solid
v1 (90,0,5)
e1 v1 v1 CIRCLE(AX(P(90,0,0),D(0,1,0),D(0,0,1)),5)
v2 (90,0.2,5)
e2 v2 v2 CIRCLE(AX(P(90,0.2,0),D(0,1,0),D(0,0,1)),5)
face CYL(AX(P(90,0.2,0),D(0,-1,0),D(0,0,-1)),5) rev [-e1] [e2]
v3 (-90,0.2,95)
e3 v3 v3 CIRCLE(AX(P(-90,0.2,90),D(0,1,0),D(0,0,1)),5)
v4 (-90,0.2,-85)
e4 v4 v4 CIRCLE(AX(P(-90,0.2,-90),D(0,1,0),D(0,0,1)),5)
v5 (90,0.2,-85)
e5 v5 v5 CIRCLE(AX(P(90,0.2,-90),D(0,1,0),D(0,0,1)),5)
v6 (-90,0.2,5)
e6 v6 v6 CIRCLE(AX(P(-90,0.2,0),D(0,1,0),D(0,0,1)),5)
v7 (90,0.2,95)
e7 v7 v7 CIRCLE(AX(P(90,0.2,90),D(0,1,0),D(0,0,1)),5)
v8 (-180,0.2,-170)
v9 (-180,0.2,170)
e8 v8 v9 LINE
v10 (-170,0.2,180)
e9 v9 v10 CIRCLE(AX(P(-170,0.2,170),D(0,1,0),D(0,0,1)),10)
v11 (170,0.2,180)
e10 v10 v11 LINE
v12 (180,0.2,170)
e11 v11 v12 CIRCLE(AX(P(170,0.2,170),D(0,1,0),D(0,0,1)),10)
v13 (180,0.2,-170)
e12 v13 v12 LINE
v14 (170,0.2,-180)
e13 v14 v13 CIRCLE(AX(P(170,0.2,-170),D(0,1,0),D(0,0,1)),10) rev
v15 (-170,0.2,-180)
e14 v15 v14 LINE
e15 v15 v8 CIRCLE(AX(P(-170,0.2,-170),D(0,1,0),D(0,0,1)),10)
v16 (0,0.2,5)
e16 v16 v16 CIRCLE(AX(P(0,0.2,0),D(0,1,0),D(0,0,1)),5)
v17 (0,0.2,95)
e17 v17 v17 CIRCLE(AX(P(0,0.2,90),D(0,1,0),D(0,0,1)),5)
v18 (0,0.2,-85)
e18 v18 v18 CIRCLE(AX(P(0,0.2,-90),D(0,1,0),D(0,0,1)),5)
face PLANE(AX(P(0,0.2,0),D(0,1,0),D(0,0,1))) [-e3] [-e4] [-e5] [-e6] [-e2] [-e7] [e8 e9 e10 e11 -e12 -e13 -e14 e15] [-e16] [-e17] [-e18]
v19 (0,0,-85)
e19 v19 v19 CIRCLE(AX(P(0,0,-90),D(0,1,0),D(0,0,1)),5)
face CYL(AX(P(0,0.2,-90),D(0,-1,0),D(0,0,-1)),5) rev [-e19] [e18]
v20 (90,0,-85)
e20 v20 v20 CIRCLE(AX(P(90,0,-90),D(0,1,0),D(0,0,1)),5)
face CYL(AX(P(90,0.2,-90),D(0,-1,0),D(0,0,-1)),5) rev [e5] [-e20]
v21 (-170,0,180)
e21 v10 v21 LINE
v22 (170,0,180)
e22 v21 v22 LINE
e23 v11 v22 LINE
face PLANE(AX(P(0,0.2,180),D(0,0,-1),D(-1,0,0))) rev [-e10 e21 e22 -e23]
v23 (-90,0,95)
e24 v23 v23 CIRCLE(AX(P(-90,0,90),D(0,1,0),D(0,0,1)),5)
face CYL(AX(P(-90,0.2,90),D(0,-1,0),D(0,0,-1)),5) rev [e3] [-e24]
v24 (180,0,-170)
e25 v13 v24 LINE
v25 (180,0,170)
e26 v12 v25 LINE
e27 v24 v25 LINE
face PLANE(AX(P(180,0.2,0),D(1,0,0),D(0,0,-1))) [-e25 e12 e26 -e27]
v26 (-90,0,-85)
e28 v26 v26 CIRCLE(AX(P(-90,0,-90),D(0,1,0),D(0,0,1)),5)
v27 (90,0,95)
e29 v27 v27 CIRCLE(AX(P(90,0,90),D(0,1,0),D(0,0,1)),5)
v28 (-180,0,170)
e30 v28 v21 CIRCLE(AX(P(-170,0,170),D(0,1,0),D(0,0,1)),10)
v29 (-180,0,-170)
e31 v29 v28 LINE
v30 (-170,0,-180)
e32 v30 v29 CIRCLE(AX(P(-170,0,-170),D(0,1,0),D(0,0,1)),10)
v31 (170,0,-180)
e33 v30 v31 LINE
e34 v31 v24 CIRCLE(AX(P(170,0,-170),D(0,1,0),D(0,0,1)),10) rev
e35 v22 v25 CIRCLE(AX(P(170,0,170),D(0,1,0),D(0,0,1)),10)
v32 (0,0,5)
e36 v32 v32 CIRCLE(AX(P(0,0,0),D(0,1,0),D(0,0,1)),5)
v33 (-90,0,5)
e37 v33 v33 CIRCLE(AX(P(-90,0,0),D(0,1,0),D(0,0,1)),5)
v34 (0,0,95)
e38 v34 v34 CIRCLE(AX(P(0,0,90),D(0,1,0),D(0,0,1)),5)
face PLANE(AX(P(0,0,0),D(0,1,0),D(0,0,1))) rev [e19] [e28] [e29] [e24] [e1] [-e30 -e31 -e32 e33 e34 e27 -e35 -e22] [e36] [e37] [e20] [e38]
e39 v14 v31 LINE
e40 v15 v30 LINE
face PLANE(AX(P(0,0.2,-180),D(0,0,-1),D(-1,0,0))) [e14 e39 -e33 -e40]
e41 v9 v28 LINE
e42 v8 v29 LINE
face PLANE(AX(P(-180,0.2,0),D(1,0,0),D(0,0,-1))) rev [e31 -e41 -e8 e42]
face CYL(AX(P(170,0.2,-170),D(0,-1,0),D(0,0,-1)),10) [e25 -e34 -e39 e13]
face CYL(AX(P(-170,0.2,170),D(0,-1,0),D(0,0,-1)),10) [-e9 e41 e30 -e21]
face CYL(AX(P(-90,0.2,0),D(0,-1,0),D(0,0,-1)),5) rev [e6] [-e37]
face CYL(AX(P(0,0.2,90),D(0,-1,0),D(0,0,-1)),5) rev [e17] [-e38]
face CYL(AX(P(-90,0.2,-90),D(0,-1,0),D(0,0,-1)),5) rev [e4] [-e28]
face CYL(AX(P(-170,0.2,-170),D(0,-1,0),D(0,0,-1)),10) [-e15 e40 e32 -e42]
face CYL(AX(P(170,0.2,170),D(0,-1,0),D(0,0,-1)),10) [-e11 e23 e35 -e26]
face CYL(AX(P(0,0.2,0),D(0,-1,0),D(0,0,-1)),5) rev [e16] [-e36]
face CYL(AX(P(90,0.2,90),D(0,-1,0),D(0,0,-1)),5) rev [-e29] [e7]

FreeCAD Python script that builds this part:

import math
import FreeCAD as App
import Part
import Sketcher
from FreeCAD import Vector
Q = App.Units.Quantity

doc = App.newDocument("Part")
body = doc.addObject("PartDesign::Body", "Body")

# Sketch on XZ plane
sketch1 = body.newObject("Sketcher::SketchObject", "Sketch")
sketch1.AttachmentSupport = (doc.getObject("XZ_Plane"), [""])
sketch1.MapMode = "FlatFace"
sketch1.addGeometry(Part.ArcOfCircle(Part.Circle(Vector(-170, -170, 0), Vector(0, 0, 1), 10), math.radians(180), math.radians(270)), False)
sketch1.addGeometry(Part.LineSegment(Vector(-180, -170, 0), Vector(-180, 170, 0)), False)
sketch1.addGeometry(Part.ArcOfCircle(Part.Circle(Vector(-170, 170, 0), Vector(0, 0, 1), 10), math.radians(90), math.radians(180)), False)
sketch1.addGeometry(Part.LineSegment(Vector(-170, 180, 0), Vector(170, 180, 0)), False)
sketch1.addGeometry(Part.ArcOfCircle(Part.Circle(Vector(170, 170, 0), Vector(0, 0, 1), 10), math.radians(0), math.radians(90)), False)
sketch1.addGeometry(Part.LineSegment(Vector(180, 170, 0), Vector(180, -170, 0)), False)
sketch1.addGeometry(Part.ArcOfCircle(Part.Circle(Vector(170, -170, 0), Vector(0, 0, 1), 10), math.radians(-90), math.radians(0)), False)
sketch1.addGeometry(Part.LineSegment(Vector(170, -180, 0), Vector(-170, -180, 0)), False)
sketch1.addGeometry(Part.ArcOfCircle(Part.Circle(Vector(90, -90, 0), Vector(0, 0, 1), 5), math.radians(-90), math.radians(0)), False)
sketch1.addGeometry(Part.ArcOfCircle(Part.Circle(Vector(90, -90, 0), Vector(0, 0, 1), 5), math.radians(0), math.radians(90)), False)
sketch1.addGeometry(Part.ArcOfCircle(Part.Circle(Vector(90, -90, 0), Vector(0, 0, 1), 5), math.radians(90), math.radians(180)), False)
sketch1.addGeometry(Part.ArcOfCircle(Part.Circle(Vector(90, -90, 0), Vector(0, 0, 1), 5), math.radians(180), math.radians(270)), False)
sketch1.addGeometry(Part.ArcOfCircle(Part.Circle(Vector(0, -90, 0), Vector(0, 0, 1), 5), math.radians(0), math.radians(90)), False)
sketch1.addGeometry(Part.ArcOfCircle(Part.Circle(Vector(0, -90, 0), Vector(0, 0, 1), 5), math.radians(90), math.radians(180)), False)
sketch1.addGeometry(Part.ArcOfCircle(Part.Circle(Vector(0, -90, 0), Vector(0, 0, 1), 5), math.radians(180), math.radians(270)), False)
sketch1.addGeometry(Part.ArcOfCircle(Part.Circle(Vector(0, -90, 0), Vector(0, 0, 1), 5), math.radians(-90), math.radians(0)), False)
sketch1.addGeometry(Part.ArcOfCircle(Part.Circle(Vector(90, 0, 0), Vector(0, 0, 1), 5), math.radians(0), math.radians(90)), False)
sketch1.addGeometry(Part.ArcOfCircle(Part.Circle(Vector(90, 0, 0), Vector(0, 0, 1), 5), math.radians(90), math.radians(180)), False)
sketch1.addGeometry(Part.ArcOfCircle(Part.Circle(Vector(90, 0, 0), Vector(0, 0, 1), 5), math.radians(180), math.radians(270)), False)
sketch1.addGeometry(Part.ArcOfCircle(Part.Circle(Vector(90, 0, 0), Vector(0, 0, 1), 5), math.radians(-90), math.radians(0)), False)
sketch1.addGeometry(Part.ArcOfCircle(Part.Circle(Vector(0, 0, 0), Vector(0, 0, 1), 5), math.radians(0), math.radians(90)), False)
sketch1.addGeometry(Part.ArcOfCircle(Part.Circle(Vector(0, 0, 0), Vector(0, 0, 1), 5), math.radians(90), math.radians(180)), False)
sketch1.addGeometry(Part.ArcOfCircle(Part.Circle(Vector(0, 0, 0), Vector(0, 0, 1), 5), math.radians(180), math.radians(270)), False)
sketch1.addGeometry(Part.ArcOfCircle(Part.Circle(Vector(0, 0, 0), Vector(0, 0, 1), 5), math.radians(-90), math.radians(0)), False)
sketch1.addGeometry(Part.ArcOfCircle(Part.Circle(Vector(90, 90, 0), Vector(0, 0, 1), 5), math.radians(0), math.radians(90)), False)
sketch1.addGeometry(Part.ArcOfCircle(Part.Circle(Vector(90, 90, 0), Vector(0, 0, 1), 5), math.radians(90), math.radians(180)), False)
sketch1.addGeometry(Part.ArcOfCircle(Part.Circle(Vector(90, 90, 0), Vector(0, 0, 1), 5), math.radians(180), math.radians(270)), False)
sketch1.addGeometry(Part.ArcOfCircle(Part.Circle(Vector(90, 90, 0), Vector(0, 0, 1), 5), math.radians(-90), math.radians(0)), False)
sketch1.addGeometry(Part.ArcOfCircle(Part.Circle(Vector(0, 90, 0), Vector(0, 0, 1), 5), math.radians(90), math.radians(180)), False)
sketch1.addGeometry(Part.ArcOfCircle(Part.Circle(Vector(0, 90, 0), Vector(0, 0, 1), 5), math.radians(180), math.radians(270)), False)
sketch1.addGeometry(Part.ArcOfCircle(Part.Circle(Vector(0, 90, 0), Vector(0, 0, 1), 5), math.radians(-90), math.radians(0)), False)
sketch1.addGeometry(Part.ArcOfCircle(Part.Circle(Vector(0, 90, 0), Vector(0, 0, 1), 5), math.radians(0), math.radians(90)), False)
sketch1.addGeometry(Part.ArcOfCircle(Part.Circle(Vector(-90, 90, 0), Vector(0, 0, 1), 5), math.radians(0), math.radians(90)), False)
sketch1.addGeometry(Part.ArcOfCircle(Part.Circle(Vector(-90, 90, 0), Vector(0, 0, 1), 5), math.radians(90), math.radians(180)), False)
sketch1.addGeometry(Part.ArcOfCircle(Part.Circle(Vector(-90, 90, 0), Vector(0, 0, 1), 5), math.radians(180), math.radians(270)), False)
sketch1.addGeometry(Part.ArcOfCircle(Part.Circle(Vector(-90, 90, 0), Vector(0, 0, 1), 5), math.radians(-90), math.radians(0)), False)
sketch1.addGeometry(Part.ArcOfCircle(Part.Circle(Vector(-90, 0, 0), Vector(0, 0, 1), 5), math.radians(90), math.radians(180)), False)
sketch1.addGeometry(Part.ArcOfCircle(Part.Circle(Vector(-90, 0, 0), Vector(0, 0, 1), 5), math.radians(180), math.radians(270)), False)
sketch1.addGeometry(Part.ArcOfCircle(Part.Circle(Vector(-90, 0, 0), Vector(0, 0, 1), 5), math.radians(-90), math.radians(0)), False)
sketch1.addGeometry(Part.ArcOfCircle(Part.Circle(Vector(-90, 0, 0), Vector(0, 0, 1), 5), math.radians(0), math.radians(90)), False)
sketch1.addGeometry(Part.ArcOfCircle(Part.Circle(Vector(-90, -90, 0), Vector(0, 0, 1), 5), math.radians(180), math.radians(270)), False)
sketch1.addGeometry(Part.ArcOfCircle(Part.Circle(Vector(-90, -90, 0), Vector(0, 0, 1), 5), math.radians(-90), math.radians(0)), False)
sketch1.addGeometry(Part.ArcOfCircle(Part.Circle(Vector(-90, -90, 0), Vector(0, 0, 1), 5), math.radians(0), math.radians(90)), False)
sketch1.addGeometry(Part.ArcOfCircle(Part.Circle(Vector(-90, -90, 0), Vector(0, 0, 1), 5), math.radians(90), math.radians(180)), False)
sketch1.addConstraint(Sketcher.Constraint("Tangent", 0, 1, 1, 1))
sketch1.addConstraint(Sketcher.Constraint("Tangent", 1, 2, 2, 2))
sketch1.addConstraint(Sketcher.Constraint("Tangent", 2, 1, 3, 1))
sketch1.addConstraint(Sketcher.Constraint("Tangent", 3, 2, 4, 2))
sketch1.addConstraint(Sketcher.Constraint("Tangent", 4, 1, 5, 1))
sketch1.addConstraint(Sketcher.Constraint("Tangent", 5, 2, 6, 2))
sketch1.addConstraint(Sketcher.Constraint("Tangent", 6, 1, 7, 1))
sketch1.addConstraint(Sketcher.Constraint("Tangent", 7, 2, 0, 2))
sketch1.addConstraint(Sketcher.Constraint("Tangent", 8, 2, 9, 1))
sketch1.addConstraint(Sketcher.Constraint("Tangent", 9, 2, 10, 1))
sketch1.addConstraint(Sketcher.Constraint("Tangent", 10, 2, 11, 1))
sketch1.addConstraint(Sketcher.Constraint("Tangent", 11, 2, 8, 1))
sketch1.addConstraint(Sketcher.Constraint("Tangent", 12, 2, 13, 1))
sketch1.addConstraint(Sketcher.Constraint("Tangent", 13, 2, 14, 1))
sketch1.addConstraint(Sketcher.Constraint("Tangent", 14, 2, 15, 1))
sketch1.addConstraint(Sketcher.Constraint("Tangent", 15, 2, 12, 1))
sketch1.addConstraint(Sketcher.Constraint("Tangent", 16, 2, 17, 1))
sketch1.addConstraint(Sketcher.Constraint("Tangent", 17, 2, 18, 1))
sketch1.addConstraint(Sketcher.Constraint("Tangent", 18, 2, 19, 1))
sketch1.addConstraint(Sketcher.Constraint("Tangent", 19, 2, 16, 1))
sketch1.addConstraint(Sketcher.Constraint("Tangent", 20, 2, 21, 1))
sketch1.addConstraint(Sketcher.Constraint("Tangent", 21, 2, 22, 1))
sketch1.addConstraint(Sketcher.Constraint("Tangent", 22, 2, 23, 1))
sketch1.addConstraint(Sketcher.Constraint("Tangent", 23, 2, 20, 1))
sketch1.addConstraint(Sketcher.Constraint("Tangent", 24, 2, 25, 1))
sketch1.addConstraint(Sketcher.Constraint("Tangent", 25, 2, 26, 1))
sketch1.addConstraint(Sketcher.Constraint("Tangent", 26, 2, 27, 1))
sketch1.addConstraint(Sketcher.Constraint("Tangent", 27, 2, 24, 1))
sketch1.addConstraint(Sketcher.Constraint("Tangent", 28, 2, 29, 1))
sketch1.addConstraint(Sketcher.Constraint("Tangent", 29, 2, 30, 1))
sketch1.addConstraint(Sketcher.Constraint("Tangent", 30, 2, 31, 1))
sketch1.addConstraint(Sketcher.Constraint("Tangent", 31, 2, 28, 1))
sketch1.addConstraint(Sketcher.Constraint("Tangent", 32, 2, 33, 1))
sketch1.addConstraint(Sketcher.Constraint("Tangent", 33, 2, 34, 1))
sketch1.addConstraint(Sketcher.Constraint("Tangent", 34, 2, 35, 1))
sketch1.addConstraint(Sketcher.Constraint("Tangent", 35, 2, 32, 1))
sketch1.addConstraint(Sketcher.Constraint("Tangent", 36, 2, 37, 1))
sketch1.addConstraint(Sketcher.Constraint("Tangent", 37, 2, 38, 1))
sketch1.addConstraint(Sketcher.Constraint("Tangent", 38, 2, 39, 1))
sketch1.addConstraint(Sketcher.Constraint("Tangent", 39, 2, 36, 1))
sketch1.addConstraint(Sketcher.Constraint("Tangent", 40, 2, 41, 1))
sketch1.addConstraint(Sketcher.Constraint("Tangent", 41, 2, 42, 1))
sketch1.addConstraint(Sketcher.Constraint("Tangent", 42, 2, 43, 1))
sketch1.addConstraint(Sketcher.Constraint("Tangent", 43, 2, 40, 1))
sketch1.addConstraint(Sketcher.Constraint("Vertical", 1))
sketch1.addConstraint(Sketcher.Constraint("Horizontal", 3))
sketch1.addConstraint(Sketcher.Constraint("Vertical", 5))
sketch1.addConstraint(Sketcher.Constraint("Horizontal", 7))
sketch1.addConstraint(Sketcher.Constraint("Coincident", 20, 3, -1, 1))
sketch1.addConstraint(Sketcher.Constraint("Equal", 0, 2))
sketch1.addConstraint(Sketcher.Constraint("Equal", 2, 4))
sketch1.addConstraint(Sketcher.Constraint("Equal", 4, 6))
sketch1.addConstraint(Sketcher.Constraint("Equal", 8, 9))
sketch1.addConstraint(Sketcher.Constraint("Equal", 11, 12))
sketch1.addConstraint(Sketcher.Constraint("Equal", 12, 13))
sketch1.addConstraint(Sketcher.Constraint("Equal", 15, 16))
sketch1.addConstraint(Sketcher.Constraint("Equal", 16, 17))
sketch1.addConstraint(Sketcher.Constraint("Equal", 19, 20))
sketch1.addConstraint(Sketcher.Constraint("Equal", 20, 21))
sketch1.addConstraint(Sketcher.Constraint("Equal", 23, 24))
sketch1.addConstraint(Sketcher.Constraint("Equal", 24, 25))
sketch1.addConstraint(Sketcher.Constraint("Equal", 27, 28))
sketch1.addConstraint(Sketcher.Constraint("Equal", 28, 29))
sketch1.addConstraint(Sketcher.Constraint("Equal", 31, 32))
sketch1.addConstraint(Sketcher.Constraint("Equal", 32, 33))
sketch1.addConstraint(Sketcher.Constraint("Equal", 35, 36))
sketch1.addConstraint(Sketcher.Constraint("Equal", 36, 37))
sketch1.addConstraint(Sketcher.Constraint("Equal", 39, 40))
sketch1.addConstraint(Sketcher.Constraint("Equal", 40, 41))
sketch1.addConstraint(Sketcher.Constraint("Symmetric", 0, 3, 4, 3, -1, 1))
sketch1.addConstraint(Sketcher.Constraint("Symmetric", 12, 3, 28, 3, -1, 1))
sketch1.addConstraint(Sketcher.Constraint("Symmetric", 8, 3, 32, 3, -1, 1))
sketch1.addConstraint(Sketcher.Constraint("Symmetric", 16, 3, 36, 3, -1, 1))
sketch1.addConstraint(Sketcher.Constraint("Symmetric", 24, 3, 40, 3, -1, 1))
sketch1.addConstraint(Sketcher.Constraint("Symmetric", 24, 3, 32, 3, -2))
sketch1.addConstraint(Sketcher.Constraint("Symmetric", 13, 2, 15, 2, -2))
sketch1.addConstraint(Sketcher.Constraint("Symmetric", 18, 2, 37, 2, -2))
sketch1.addConstraint(Sketcher.Constraint("PointOnObject", 12, 2, -2))
sketch1.addConstraint(Sketcher.Constraint("PointOnObject", 14, 2, -2))
sketch1.addConstraint(Sketcher.Constraint("PointOnObject", 17, 2, -1))
sketch1.addConstraint(Sketcher.Constraint("PointOnObject", 19, 2, -1))
sketch1.addConstraint(Sketcher.Constraint("PointOnObject", 20, 2, -2))
sketch1.addConstraint(Sketcher.Constraint("PointOnObject", 21, 2, -1))
sketch1.addConstraint(Sketcher.Constraint("PointOnObject", 22, 2, -2))
sketch1.addConstraint(Sketcher.Constraint("PointOnObject", 23, 2, -1))
sketch1.addConstraint(Sketcher.Constraint("PointOnObject", 29, 2, -2))
sketch1.addConstraint(Sketcher.Constraint("PointOnObject", 31, 2, -2))
sketch1.addConstraint(Sketcher.Constraint("PointOnObject", 36, 2, -1))
sketch1.addConstraint(Sketcher.Constraint("PointOnObject", 38, 2, -1))
sketch1.addConstraint(Sketcher.Constraint("Horizontal", 11, 3, 12, 3))
sketch1.addConstraint(Sketcher.Constraint("Horizontal", 43, 3, 8, 2))
sketch1.addConstraint(Sketcher.Constraint("Horizontal", 8, 2, 10, 2))
sketch1.addConstraint(Sketcher.Constraint("Horizontal", 10, 2, 13, 2))
sketch1.addConstraint(Sketcher.Constraint("Horizontal", 35, 3, 25, 2))
sketch1.addConstraint(Sketcher.Constraint("Horizontal", 25, 2, 27, 2))
sketch1.addConstraint(Sketcher.Constraint("Horizontal", 27, 2, 28, 2))
sketch1.addConstraint(Sketcher.Constraint("Horizontal", 28, 2, 30, 2))
sketch1.addConstraint(Sketcher.Constraint("Horizontal", 30, 2, 33, 2))
sketch1.addConstraint(Sketcher.Constraint("Horizontal", 33, 2, 35, 2))
sketch1.addConstraint(Sketcher.Constraint("Horizontal", 15, 2, 41, 2))
sketch1.addConstraint(Sketcher.Constraint("Horizontal", 41, 2, 43, 2))
sketch1.addConstraint(Sketcher.Constraint("Vertical", 11, 3, 16, 3))
sketch1.addConstraint(Sketcher.Constraint("Vertical", 27, 3, 9, 2))
sketch1.addConstraint(Sketcher.Constraint("Vertical", 9, 2, 11, 2))
sketch1.addConstraint(Sketcher.Constraint("Vertical", 11, 2, 16, 2))
sketch1.addConstraint(Sketcher.Constraint("Vertical", 16, 2, 18, 2))
sketch1.addConstraint(Sketcher.Constraint("Vertical", 18, 2, 24, 2))
sketch1.addConstraint(Sketcher.Constraint("Vertical", 24, 2, 26, 2))
sketch1.addConstraint(Sketcher.Constraint("Vertical", 43, 3, 32, 2))
sketch1.addConstraint(Sketcher.Constraint("Vertical", 32, 2, 34, 2))
sketch1.addConstraint(Sketcher.Constraint("Vertical", 37, 2, 39, 2))
sketch1.addConstraint(Sketcher.Constraint("Vertical", 39, 2, 40, 2))
sketch1.addConstraint(Sketcher.Constraint("Vertical", 40, 2, 42, 2))
sketch1.addConstraint(Sketcher.Constraint("Equal", 7, 1))
sketch1.addConstraint(Sketcher.Constraint("Radius", 0, Q("10 mm")))
sketch1.addConstraint(Sketcher.Constraint("Radius", 8, Q("5 mm")))
sketch1.addConstraint(Sketcher.Constraint("DistanceX", 3, 1, 3, 2, Q("340 mm")))
sketch1.addConstraint(Sketcher.Constraint("DistanceX", -1, 1, 8, 3, Q("90 mm")))
sketch1.addConstraint(Sketcher.Constraint("DistanceY", 8, 3, -1, 1, Q("90 mm")))
pad1 = body.newObject("PartDesign::Pad", "Pad")
pad1.Profile = sketch1
pad1.Length = 0.2
pad1.Reversed = True

doc.recompute()
